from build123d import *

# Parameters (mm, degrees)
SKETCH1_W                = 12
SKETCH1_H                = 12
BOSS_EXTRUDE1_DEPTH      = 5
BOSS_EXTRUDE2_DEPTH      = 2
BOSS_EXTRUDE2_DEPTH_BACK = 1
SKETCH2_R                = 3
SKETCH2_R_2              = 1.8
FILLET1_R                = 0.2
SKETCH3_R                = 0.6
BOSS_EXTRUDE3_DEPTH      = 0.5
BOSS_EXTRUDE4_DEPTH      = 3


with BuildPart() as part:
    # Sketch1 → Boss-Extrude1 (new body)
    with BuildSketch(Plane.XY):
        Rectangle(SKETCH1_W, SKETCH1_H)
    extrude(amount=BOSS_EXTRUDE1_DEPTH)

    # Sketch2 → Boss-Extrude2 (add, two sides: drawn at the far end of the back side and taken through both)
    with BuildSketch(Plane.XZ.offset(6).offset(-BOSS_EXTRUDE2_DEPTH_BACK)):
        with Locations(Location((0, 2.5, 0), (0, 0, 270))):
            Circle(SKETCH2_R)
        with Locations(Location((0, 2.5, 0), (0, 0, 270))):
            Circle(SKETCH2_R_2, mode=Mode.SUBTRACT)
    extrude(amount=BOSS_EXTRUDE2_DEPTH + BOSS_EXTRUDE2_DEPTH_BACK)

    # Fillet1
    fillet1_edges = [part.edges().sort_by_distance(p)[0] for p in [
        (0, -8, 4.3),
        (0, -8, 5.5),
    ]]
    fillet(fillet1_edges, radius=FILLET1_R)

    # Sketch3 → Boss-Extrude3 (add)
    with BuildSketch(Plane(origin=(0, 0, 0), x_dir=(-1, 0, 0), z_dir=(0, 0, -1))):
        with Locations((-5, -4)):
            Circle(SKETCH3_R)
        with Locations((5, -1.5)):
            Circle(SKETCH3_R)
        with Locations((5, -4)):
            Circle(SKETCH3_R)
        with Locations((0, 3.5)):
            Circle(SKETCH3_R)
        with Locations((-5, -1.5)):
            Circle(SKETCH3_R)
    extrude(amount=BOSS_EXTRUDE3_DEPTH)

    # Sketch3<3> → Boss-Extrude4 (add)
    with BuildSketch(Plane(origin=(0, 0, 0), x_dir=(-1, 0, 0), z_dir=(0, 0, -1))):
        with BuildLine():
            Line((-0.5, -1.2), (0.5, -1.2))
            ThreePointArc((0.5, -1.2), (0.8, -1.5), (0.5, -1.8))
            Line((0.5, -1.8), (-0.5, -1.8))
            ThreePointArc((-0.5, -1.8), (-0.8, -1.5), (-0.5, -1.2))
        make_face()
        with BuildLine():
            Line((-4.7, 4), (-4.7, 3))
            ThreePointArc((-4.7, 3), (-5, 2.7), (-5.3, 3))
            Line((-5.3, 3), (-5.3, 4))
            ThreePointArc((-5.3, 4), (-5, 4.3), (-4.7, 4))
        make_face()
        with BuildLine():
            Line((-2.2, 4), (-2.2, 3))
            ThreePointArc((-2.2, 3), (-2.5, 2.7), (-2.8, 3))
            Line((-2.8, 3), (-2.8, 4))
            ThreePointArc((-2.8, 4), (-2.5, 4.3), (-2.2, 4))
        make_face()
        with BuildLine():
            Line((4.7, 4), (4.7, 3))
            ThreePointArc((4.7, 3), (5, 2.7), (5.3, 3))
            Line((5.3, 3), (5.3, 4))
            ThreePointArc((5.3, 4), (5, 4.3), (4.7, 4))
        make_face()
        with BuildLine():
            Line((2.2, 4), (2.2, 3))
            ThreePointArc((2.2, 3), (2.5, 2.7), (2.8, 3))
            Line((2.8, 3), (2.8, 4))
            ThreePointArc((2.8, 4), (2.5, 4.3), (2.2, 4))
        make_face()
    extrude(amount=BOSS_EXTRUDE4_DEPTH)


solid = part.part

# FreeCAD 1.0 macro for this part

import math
import FreeCAD as App
import Part
import Sketcher
from FreeCAD import Vector
Q = App.Units.Quantity


def edges_at(feature, points):
    """Names of the edges that pass closest to the given points."""
    edges = feature.Shape.Edges
    near = lambda p: min(range(len(edges)), key=lambda i: edges[i].distToShape(Part.Vertex(*p))[0])
    return sorted({f"Edge{near(p) + 1}" for p in points})

doc = App.newDocument("Part")
body = doc.addObject("PartDesign::Body", "Body")

sketch1 = body.newObject("Sketcher::SketchObject", "Sketch")
sketch1.AttachmentSupport = (doc.getObject("XY_Plane"), [""])
sketch1.MapMode = "FlatFace"
sketch1.addGeometry(Part.LineSegment(Vector(-6, 6, 0), Vector(-6, -6, 0)), False)
sketch1.addGeometry(Part.LineSegment(Vector(-6, -6, 0), Vector(6, -6, 0)), False)
sketch1.addGeometry(Part.LineSegment(Vector(6, -6, 0), Vector(6, 6, 0)), False)
sketch1.addGeometry(Part.LineSegment(Vector(6, 6, 0), Vector(-6, 6, 0)), False)
sketch1.addConstraint(Sketcher.Constraint("Coincident", 0, 2, 1, 1))
sketch1.addConstraint(Sketcher.Constraint("Coincident", 1, 2, 2, 1))
sketch1.addConstraint(Sketcher.Constraint("Coincident", 2, 2, 3, 1))
sketch1.addConstraint(Sketcher.Constraint("Coincident", 3, 2, 0, 1))
sketch1.addConstraint(Sketcher.Constraint("Vertical", 0))
sketch1.addConstraint(Sketcher.Constraint("Horizontal", 1))
sketch1.addConstraint(Sketcher.Constraint("Vertical", 2))
sketch1.addConstraint(Sketcher.Constraint("Horizontal", 3))
sketch1.addConstraint(Sketcher.Constraint("Symmetric", 0, 2, 2, 2, -1, 1))
sketch1.addConstraint(Sketcher.Constraint("Equal", 3, 0))
sketch1.addConstraint(Sketcher.Constraint("DistanceX", 1, 1, 1, 2, Q("12 mm")))
pad1 = body.newObject("PartDesign::Pad", "Pad")
pad1.Profile = sketch1
pad1.Length = 5

sketch2 = body.newObject("Sketcher::SketchObject", "Sketch001")
sketch2.AttachmentSupport = (doc.getObject("XZ_Plane"), [""])
sketch2.MapMode = "FlatFace"
sketch2.AttachmentOffset = App.Placement(Vector(0, 0, 6), App.Rotation())
sketch2.addGeometry(Part.Circle(Vector(0, 2.5, 0), Vector(0, 0, 1), 3), False)
sketch2.addGeometry(Part.Circle(Vector(0, 2.5, 0), Vector(0, 0, 1), 1.8), False)
sketch2.addConstraint(Sketcher.Constraint("Coincident", 1, 3, 0, 3))
sketch2.addConstraint(Sketcher.Constraint("PointOnObject", 0, 3, -2))
sketch2.addConstraint(Sketcher.Constraint("Diameter", 0, Q("6 mm")))
sketch2.addConstraint(Sketcher.Constraint("Diameter", 1, Q("3.6 mm")))
sketch2.addConstraint(Sketcher.Constraint("DistanceY", -1, 1, 0, 3, Q("2.5 mm")))
pad2 = body.newObject("PartDesign::Pad", "Pad001")
pad2.Profile = sketch2
pad2.Type = "TwoLengths"
pad2.Length = 2
pad2.Length2 = 1
doc.recompute()

fillet = body.newObject("PartDesign::Fillet", "Fillet")
fillet.Base = (pad2, edges_at(pad2, [(0, -8, 4.3), (0, -8, 5.5)]))
fillet.Radius = 0.2

sketch3 = body.newObject("Sketcher::SketchObject", "Sketch002")
sketch3.AttachmentSupport = (doc.getObject("XY_Plane"), [""])
sketch3.MapMode = "FlatFace"
sketch3.addGeometry(Part.Circle(Vector(5, -4, 0), Vector(0, 0, 1), 0.6), False)
sketch3.addGeometry(Part.Circle(Vector(-5, -1.5, 0), Vector(0, 0, 1), 0.6), False)
sketch3.addGeometry(Part.Circle(Vector(-5, -4, 0), Vector(0, 0, 1), 0.6), False)
sketch3.addGeometry(Part.Circle(Vector(0, 3.5, 0), Vector(0, 0, 1), 0.6), False)
sketch3.addGeometry(Part.Circle(Vector(5, -1.5, 0), Vector(0, 0, 1), 0.6), False)
sketch3.addConstraint(Sketcher.Constraint("Equal", 0, 1))
sketch3.addConstraint(Sketcher.Constraint("Equal", 1, 2))
sketch3.addConstraint(Sketcher.Constraint("Equal", 2, 3))
sketch3.addConstraint(Sketcher.Constraint("Equal", 3, 4))
sketch3.addConstraint(Sketcher.Constraint("Symmetric", 0, 3, 2, 3, -2))
sketch3.addConstraint(Sketcher.Constraint("Symmetric", 1, 3, 4, 3, -2))
sketch3.addConstraint(Sketcher.Constraint("PointOnObject", 3, 3, -2))
sketch3.addConstraint(Sketcher.Constraint("Vertical", 1, 3, 2, 3))
sketch3.addConstraint(Sketcher.Constraint("Diameter", 0, Q("1.2 mm")))
sketch3.addConstraint(Sketcher.Constraint("DistanceX", -1, 1, 0, 3, Q("5 mm")))
sketch3.addConstraint(Sketcher.Constraint("DistanceY", 0, 3, -1, 1, Q("4 mm")))
sketch3.addConstraint(Sketcher.Constraint("DistanceY", 1, 3, 3, 3, Q("5 mm")))
sketch3.addConstraint(Sketcher.Constraint("DistanceY", 1, 3, -1, 1, Q("1.5 mm")))
pad3 = body.newObject("PartDesign::Pad", "Pad002")
pad3.Profile = sketch3
pad3.Length = 0.5
pad3.Reversed = True

sketch4 = body.newObject("Sketcher::SketchObject", "Sketch003")
sketch4.AttachmentSupport = (doc.getObject("XY_Plane"), [""])
sketch4.MapMode = "FlatFace"
sketch4.addGeometry(Part.LineSegment(Vector(-0.5, -1.2, 0), Vector(0.5, -1.2, 0)), False)
sketch4.addGeometry(Part.ArcOfCircle(Part.Circle(Vector(0.5, -1.5, 0), Vector(0, 0, 1), 0.3), math.radians(-90), math.radians(90)), False)
sketch4.addGeometry(Part.LineSegment(Vector(0.5, -1.8, 0), Vector(-0.5, -1.8, 0)), False)
sketch4.addGeometry(Part.ArcOfCircle(Part.Circle(Vector(-0.5, -1.5, 0), Vector(0, 0, 1), 0.3), math.radians(90), math.radians(270)), False)
sketch4.addGeometry(Part.LineSegment(Vector(4.7, 3, 0), Vector(4.7, 4, 0)), False)
sketch4.addGeometry(Part.ArcOfCircle(Part.Circle(Vector(5, 4, 0), Vector(0, 0, 1), 0.3), math.radians(0), math.radians(180)), False)
sketch4.addGeometry(Part.LineSegment(Vector(5.3, 4, 0), Vector(5.3, 3, 0)), False)
sketch4.addGeometry(Part.ArcOfCircle(Part.Circle(Vector(5, 3, 0), Vector(0, 0, 1), 0.3), math.radians(180), math.radians(360)), False)
sketch4.addGeometry(Part.LineSegment(Vector(2.2, 3, 0), Vector(2.2, 4, 0)), False)
sketch4.addGeometry(Part.ArcOfCircle(Part.Circle(Vector(2.5, 4, 0), Vector(0, 0, 1), 0.3), math.radians(0), math.radians(180)), False)
sketch4.addGeometry(Part.LineSegment(Vector(2.8, 4, 0), Vector(2.8, 3, 0)), False)
sketch4.addGeometry(Part.ArcOfCircle(Part.Circle(Vector(2.5, 3, 0), Vector(0, 0, 1), 0.3), math.radians(180), math.radians(360)), False)
sketch4.addGeometry(Part.LineSegment(Vector(-4.7, 4, 0), Vector(-4.7, 3, 0)), False)
sketch4.addGeometry(Part.ArcOfCircle(Part.Circle(Vector(-5, 3, 0), Vector(0, 0, 1), 0.3), math.radians(180), math.radians(360)), False)
sketch4.addGeometry(Part.LineSegment(Vector(-5.3, 3, 0), Vector(-5.3, 4, 0)), False)
sketch4.addGeometry(Part.ArcOfCircle(Part.Circle(Vector(-5, 4, 0), Vector(0, 0, 1), 0.3), math.radians(0), math.radians(180)), False)
sketch4.addGeometry(Part.LineSegment(Vector(-2.2, 4, 0), Vector(-2.2, 3, 0)), False)
sketch4.addGeometry(Part.ArcOfCircle(Part.Circle(Vector(-2.5, 3, 0), Vector(0, 0, 1), 0.3), math.radians(180), math.radians(360)), False)
sketch4.addGeometry(Part.LineSegment(Vector(-2.8, 3, 0), Vector(-2.8, 4, 0)), False)
sketch4.addGeometry(Part.ArcOfCircle(Part.Circle(Vector(-2.5, 4, 0), Vector(0, 0, 1), 0.3), math.radians(0), math.radians(180)), False)
sketch4.addConstraint(Sketcher.Constraint("Tangent", 0, 2, 1, 2))
sketch4.addConstraint(Sketcher.Constraint("Tangent", 1, 1, 2, 1))
sketch4.addConstraint(Sketcher.Constraint("Tangent", 2, 2, 3, 2))
sketch4.addConstraint(Sketcher.Constraint("Tangent", 3, 1, 0, 1))
sketch4.addConstraint(Sketcher.Constraint("Tangent", 4, 2, 5, 2))
sketch4.addConstraint(Sketcher.Constraint("Tangent", 5, 1, 6, 1))
sketch4.addConstraint(Sketcher.Constraint("Tangent", 6, 2, 7, 2))
sketch4.addConstraint(Sketcher.Constraint("Tangent", 7, 1, 4, 1))
sketch4.addConstraint(Sketcher.Constraint("Tangent", 8, 2, 9, 2))
sketch4.addConstraint(Sketcher.Constraint("Tangent", 9, 1, 10, 1))
sketch4.addConstraint(Sketcher.Constraint("Tangent", 10, 2, 11, 2))
sketch4.addConstraint(Sketcher.Constraint("Tangent", 11, 1, 8, 1))
sketch4.addConstraint(Sketcher.Constraint("Tangent", 12, 2, 13, 2))
sketch4.addConstraint(Sketcher.Constraint("Tangent", 13, 1, 14, 1))
sketch4.addConstraint(Sketcher.Constraint("Tangent", 14, 2, 15, 2))
sketch4.addConstraint(Sketcher.Constraint("Tangent", 15, 1, 12, 1))
sketch4.addConstraint(Sketcher.Constraint("Tangent", 16, 2, 17, 2))
sketch4.addConstraint(Sketcher.Constraint("Tangent", 17, 1, 18, 1))
sketch4.addConstraint(Sketcher.Constraint("Tangent", 18, 2, 19, 2))
sketch4.addConstraint(Sketcher.Constraint("Tangent", 19, 1, 16, 1))
sketch4.addConstraint(Sketcher.Constraint("Horizontal", 0))
sketch4.addConstraint(Sketcher.Constraint("Horizontal", 2))
sketch4.addConstraint(Sketcher.Constraint("Vertical", 4))
sketch4.addConstraint(Sketcher.Constraint("Vertical", 6))
sketch4.addConstraint(Sketcher.Constraint("Vertical", 8))
sketch4.addConstraint(Sketcher.Constraint("Vertical", 10))
sketch4.addConstraint(Sketcher.Constraint("Vertical", 12))
sketch4.addConstraint(Sketcher.Constraint("Vertical", 14))
sketch4.addConstraint(Sketcher.Constraint("Vertical", 16))
sketch4.addConstraint(Sketcher.Constraint("Vertical", 18))
sketch4.addConstraint(Sketcher.Constraint("Equal", 3, 5))
sketch4.addConstraint(Sketcher.Constraint("Equal", 7, 9))
sketch4.addConstraint(Sketcher.Constraint("Equal", 11, 13))
sketch4.addConstraint(Sketcher.Constraint("Equal", 15, 17))
sketch4.addConstraint(Sketcher.Constraint("Symmetric", 7, 3, 13, 3, -2))
sketch4.addConstraint(Sketcher.Constraint("Symmetric", 11, 3, 17, 3, -2))
sketch4.addConstraint(Sketcher.Constraint("Horizontal", 5, 3, 9, 3))
sketch4.addConstraint(Sketcher.Constraint("Horizontal", 7, 3, 11, 3))
sketch4.addConstraint(Sketcher.Constraint("Horizontal", 9, 3, 15, 3))
sketch4.addConstraint(Sketcher.Constraint("Horizontal", 15, 3, 19, 3))
sketch4.addConstraint(Sketcher.Constraint("Equal", 2, 4))
sketch4.addConstraint(Sketcher.Constraint("Radius", 1, Q("0.3 mm")))
sketch4.addConstraint(Sketcher.Constraint("DistanceX", 0, 1, 0, 2, Q("1 mm")))
sketch4.addConstraint(Sketcher.Constraint("DistanceX", -1, 1, 5, 3, Q("5 mm")))
sketch4.addConstraint(Sketcher.Constraint("DistanceY", -1, 1, 5, 3, Q("4 mm")))
sketch4.addConstraint(Sketcher.Constraint("DistanceX", 1, 3, 9, 3, Q("2 mm")))
sketch4.addConstraint(Sketcher.Constraint("DistanceX", 17, 3, 3, 3, Q("2 mm")))
sketch4.addConstraint(Sketcher.Constraint("DistanceY", 1, 3, -1, 1, Q("1.5 mm")))
pad4 = body.newObject("PartDesign::Pad", "Pad003")
pad4.Profile = sketch4
pad4.Length = 3
pad4.Reversed = True

doc.recompute()
